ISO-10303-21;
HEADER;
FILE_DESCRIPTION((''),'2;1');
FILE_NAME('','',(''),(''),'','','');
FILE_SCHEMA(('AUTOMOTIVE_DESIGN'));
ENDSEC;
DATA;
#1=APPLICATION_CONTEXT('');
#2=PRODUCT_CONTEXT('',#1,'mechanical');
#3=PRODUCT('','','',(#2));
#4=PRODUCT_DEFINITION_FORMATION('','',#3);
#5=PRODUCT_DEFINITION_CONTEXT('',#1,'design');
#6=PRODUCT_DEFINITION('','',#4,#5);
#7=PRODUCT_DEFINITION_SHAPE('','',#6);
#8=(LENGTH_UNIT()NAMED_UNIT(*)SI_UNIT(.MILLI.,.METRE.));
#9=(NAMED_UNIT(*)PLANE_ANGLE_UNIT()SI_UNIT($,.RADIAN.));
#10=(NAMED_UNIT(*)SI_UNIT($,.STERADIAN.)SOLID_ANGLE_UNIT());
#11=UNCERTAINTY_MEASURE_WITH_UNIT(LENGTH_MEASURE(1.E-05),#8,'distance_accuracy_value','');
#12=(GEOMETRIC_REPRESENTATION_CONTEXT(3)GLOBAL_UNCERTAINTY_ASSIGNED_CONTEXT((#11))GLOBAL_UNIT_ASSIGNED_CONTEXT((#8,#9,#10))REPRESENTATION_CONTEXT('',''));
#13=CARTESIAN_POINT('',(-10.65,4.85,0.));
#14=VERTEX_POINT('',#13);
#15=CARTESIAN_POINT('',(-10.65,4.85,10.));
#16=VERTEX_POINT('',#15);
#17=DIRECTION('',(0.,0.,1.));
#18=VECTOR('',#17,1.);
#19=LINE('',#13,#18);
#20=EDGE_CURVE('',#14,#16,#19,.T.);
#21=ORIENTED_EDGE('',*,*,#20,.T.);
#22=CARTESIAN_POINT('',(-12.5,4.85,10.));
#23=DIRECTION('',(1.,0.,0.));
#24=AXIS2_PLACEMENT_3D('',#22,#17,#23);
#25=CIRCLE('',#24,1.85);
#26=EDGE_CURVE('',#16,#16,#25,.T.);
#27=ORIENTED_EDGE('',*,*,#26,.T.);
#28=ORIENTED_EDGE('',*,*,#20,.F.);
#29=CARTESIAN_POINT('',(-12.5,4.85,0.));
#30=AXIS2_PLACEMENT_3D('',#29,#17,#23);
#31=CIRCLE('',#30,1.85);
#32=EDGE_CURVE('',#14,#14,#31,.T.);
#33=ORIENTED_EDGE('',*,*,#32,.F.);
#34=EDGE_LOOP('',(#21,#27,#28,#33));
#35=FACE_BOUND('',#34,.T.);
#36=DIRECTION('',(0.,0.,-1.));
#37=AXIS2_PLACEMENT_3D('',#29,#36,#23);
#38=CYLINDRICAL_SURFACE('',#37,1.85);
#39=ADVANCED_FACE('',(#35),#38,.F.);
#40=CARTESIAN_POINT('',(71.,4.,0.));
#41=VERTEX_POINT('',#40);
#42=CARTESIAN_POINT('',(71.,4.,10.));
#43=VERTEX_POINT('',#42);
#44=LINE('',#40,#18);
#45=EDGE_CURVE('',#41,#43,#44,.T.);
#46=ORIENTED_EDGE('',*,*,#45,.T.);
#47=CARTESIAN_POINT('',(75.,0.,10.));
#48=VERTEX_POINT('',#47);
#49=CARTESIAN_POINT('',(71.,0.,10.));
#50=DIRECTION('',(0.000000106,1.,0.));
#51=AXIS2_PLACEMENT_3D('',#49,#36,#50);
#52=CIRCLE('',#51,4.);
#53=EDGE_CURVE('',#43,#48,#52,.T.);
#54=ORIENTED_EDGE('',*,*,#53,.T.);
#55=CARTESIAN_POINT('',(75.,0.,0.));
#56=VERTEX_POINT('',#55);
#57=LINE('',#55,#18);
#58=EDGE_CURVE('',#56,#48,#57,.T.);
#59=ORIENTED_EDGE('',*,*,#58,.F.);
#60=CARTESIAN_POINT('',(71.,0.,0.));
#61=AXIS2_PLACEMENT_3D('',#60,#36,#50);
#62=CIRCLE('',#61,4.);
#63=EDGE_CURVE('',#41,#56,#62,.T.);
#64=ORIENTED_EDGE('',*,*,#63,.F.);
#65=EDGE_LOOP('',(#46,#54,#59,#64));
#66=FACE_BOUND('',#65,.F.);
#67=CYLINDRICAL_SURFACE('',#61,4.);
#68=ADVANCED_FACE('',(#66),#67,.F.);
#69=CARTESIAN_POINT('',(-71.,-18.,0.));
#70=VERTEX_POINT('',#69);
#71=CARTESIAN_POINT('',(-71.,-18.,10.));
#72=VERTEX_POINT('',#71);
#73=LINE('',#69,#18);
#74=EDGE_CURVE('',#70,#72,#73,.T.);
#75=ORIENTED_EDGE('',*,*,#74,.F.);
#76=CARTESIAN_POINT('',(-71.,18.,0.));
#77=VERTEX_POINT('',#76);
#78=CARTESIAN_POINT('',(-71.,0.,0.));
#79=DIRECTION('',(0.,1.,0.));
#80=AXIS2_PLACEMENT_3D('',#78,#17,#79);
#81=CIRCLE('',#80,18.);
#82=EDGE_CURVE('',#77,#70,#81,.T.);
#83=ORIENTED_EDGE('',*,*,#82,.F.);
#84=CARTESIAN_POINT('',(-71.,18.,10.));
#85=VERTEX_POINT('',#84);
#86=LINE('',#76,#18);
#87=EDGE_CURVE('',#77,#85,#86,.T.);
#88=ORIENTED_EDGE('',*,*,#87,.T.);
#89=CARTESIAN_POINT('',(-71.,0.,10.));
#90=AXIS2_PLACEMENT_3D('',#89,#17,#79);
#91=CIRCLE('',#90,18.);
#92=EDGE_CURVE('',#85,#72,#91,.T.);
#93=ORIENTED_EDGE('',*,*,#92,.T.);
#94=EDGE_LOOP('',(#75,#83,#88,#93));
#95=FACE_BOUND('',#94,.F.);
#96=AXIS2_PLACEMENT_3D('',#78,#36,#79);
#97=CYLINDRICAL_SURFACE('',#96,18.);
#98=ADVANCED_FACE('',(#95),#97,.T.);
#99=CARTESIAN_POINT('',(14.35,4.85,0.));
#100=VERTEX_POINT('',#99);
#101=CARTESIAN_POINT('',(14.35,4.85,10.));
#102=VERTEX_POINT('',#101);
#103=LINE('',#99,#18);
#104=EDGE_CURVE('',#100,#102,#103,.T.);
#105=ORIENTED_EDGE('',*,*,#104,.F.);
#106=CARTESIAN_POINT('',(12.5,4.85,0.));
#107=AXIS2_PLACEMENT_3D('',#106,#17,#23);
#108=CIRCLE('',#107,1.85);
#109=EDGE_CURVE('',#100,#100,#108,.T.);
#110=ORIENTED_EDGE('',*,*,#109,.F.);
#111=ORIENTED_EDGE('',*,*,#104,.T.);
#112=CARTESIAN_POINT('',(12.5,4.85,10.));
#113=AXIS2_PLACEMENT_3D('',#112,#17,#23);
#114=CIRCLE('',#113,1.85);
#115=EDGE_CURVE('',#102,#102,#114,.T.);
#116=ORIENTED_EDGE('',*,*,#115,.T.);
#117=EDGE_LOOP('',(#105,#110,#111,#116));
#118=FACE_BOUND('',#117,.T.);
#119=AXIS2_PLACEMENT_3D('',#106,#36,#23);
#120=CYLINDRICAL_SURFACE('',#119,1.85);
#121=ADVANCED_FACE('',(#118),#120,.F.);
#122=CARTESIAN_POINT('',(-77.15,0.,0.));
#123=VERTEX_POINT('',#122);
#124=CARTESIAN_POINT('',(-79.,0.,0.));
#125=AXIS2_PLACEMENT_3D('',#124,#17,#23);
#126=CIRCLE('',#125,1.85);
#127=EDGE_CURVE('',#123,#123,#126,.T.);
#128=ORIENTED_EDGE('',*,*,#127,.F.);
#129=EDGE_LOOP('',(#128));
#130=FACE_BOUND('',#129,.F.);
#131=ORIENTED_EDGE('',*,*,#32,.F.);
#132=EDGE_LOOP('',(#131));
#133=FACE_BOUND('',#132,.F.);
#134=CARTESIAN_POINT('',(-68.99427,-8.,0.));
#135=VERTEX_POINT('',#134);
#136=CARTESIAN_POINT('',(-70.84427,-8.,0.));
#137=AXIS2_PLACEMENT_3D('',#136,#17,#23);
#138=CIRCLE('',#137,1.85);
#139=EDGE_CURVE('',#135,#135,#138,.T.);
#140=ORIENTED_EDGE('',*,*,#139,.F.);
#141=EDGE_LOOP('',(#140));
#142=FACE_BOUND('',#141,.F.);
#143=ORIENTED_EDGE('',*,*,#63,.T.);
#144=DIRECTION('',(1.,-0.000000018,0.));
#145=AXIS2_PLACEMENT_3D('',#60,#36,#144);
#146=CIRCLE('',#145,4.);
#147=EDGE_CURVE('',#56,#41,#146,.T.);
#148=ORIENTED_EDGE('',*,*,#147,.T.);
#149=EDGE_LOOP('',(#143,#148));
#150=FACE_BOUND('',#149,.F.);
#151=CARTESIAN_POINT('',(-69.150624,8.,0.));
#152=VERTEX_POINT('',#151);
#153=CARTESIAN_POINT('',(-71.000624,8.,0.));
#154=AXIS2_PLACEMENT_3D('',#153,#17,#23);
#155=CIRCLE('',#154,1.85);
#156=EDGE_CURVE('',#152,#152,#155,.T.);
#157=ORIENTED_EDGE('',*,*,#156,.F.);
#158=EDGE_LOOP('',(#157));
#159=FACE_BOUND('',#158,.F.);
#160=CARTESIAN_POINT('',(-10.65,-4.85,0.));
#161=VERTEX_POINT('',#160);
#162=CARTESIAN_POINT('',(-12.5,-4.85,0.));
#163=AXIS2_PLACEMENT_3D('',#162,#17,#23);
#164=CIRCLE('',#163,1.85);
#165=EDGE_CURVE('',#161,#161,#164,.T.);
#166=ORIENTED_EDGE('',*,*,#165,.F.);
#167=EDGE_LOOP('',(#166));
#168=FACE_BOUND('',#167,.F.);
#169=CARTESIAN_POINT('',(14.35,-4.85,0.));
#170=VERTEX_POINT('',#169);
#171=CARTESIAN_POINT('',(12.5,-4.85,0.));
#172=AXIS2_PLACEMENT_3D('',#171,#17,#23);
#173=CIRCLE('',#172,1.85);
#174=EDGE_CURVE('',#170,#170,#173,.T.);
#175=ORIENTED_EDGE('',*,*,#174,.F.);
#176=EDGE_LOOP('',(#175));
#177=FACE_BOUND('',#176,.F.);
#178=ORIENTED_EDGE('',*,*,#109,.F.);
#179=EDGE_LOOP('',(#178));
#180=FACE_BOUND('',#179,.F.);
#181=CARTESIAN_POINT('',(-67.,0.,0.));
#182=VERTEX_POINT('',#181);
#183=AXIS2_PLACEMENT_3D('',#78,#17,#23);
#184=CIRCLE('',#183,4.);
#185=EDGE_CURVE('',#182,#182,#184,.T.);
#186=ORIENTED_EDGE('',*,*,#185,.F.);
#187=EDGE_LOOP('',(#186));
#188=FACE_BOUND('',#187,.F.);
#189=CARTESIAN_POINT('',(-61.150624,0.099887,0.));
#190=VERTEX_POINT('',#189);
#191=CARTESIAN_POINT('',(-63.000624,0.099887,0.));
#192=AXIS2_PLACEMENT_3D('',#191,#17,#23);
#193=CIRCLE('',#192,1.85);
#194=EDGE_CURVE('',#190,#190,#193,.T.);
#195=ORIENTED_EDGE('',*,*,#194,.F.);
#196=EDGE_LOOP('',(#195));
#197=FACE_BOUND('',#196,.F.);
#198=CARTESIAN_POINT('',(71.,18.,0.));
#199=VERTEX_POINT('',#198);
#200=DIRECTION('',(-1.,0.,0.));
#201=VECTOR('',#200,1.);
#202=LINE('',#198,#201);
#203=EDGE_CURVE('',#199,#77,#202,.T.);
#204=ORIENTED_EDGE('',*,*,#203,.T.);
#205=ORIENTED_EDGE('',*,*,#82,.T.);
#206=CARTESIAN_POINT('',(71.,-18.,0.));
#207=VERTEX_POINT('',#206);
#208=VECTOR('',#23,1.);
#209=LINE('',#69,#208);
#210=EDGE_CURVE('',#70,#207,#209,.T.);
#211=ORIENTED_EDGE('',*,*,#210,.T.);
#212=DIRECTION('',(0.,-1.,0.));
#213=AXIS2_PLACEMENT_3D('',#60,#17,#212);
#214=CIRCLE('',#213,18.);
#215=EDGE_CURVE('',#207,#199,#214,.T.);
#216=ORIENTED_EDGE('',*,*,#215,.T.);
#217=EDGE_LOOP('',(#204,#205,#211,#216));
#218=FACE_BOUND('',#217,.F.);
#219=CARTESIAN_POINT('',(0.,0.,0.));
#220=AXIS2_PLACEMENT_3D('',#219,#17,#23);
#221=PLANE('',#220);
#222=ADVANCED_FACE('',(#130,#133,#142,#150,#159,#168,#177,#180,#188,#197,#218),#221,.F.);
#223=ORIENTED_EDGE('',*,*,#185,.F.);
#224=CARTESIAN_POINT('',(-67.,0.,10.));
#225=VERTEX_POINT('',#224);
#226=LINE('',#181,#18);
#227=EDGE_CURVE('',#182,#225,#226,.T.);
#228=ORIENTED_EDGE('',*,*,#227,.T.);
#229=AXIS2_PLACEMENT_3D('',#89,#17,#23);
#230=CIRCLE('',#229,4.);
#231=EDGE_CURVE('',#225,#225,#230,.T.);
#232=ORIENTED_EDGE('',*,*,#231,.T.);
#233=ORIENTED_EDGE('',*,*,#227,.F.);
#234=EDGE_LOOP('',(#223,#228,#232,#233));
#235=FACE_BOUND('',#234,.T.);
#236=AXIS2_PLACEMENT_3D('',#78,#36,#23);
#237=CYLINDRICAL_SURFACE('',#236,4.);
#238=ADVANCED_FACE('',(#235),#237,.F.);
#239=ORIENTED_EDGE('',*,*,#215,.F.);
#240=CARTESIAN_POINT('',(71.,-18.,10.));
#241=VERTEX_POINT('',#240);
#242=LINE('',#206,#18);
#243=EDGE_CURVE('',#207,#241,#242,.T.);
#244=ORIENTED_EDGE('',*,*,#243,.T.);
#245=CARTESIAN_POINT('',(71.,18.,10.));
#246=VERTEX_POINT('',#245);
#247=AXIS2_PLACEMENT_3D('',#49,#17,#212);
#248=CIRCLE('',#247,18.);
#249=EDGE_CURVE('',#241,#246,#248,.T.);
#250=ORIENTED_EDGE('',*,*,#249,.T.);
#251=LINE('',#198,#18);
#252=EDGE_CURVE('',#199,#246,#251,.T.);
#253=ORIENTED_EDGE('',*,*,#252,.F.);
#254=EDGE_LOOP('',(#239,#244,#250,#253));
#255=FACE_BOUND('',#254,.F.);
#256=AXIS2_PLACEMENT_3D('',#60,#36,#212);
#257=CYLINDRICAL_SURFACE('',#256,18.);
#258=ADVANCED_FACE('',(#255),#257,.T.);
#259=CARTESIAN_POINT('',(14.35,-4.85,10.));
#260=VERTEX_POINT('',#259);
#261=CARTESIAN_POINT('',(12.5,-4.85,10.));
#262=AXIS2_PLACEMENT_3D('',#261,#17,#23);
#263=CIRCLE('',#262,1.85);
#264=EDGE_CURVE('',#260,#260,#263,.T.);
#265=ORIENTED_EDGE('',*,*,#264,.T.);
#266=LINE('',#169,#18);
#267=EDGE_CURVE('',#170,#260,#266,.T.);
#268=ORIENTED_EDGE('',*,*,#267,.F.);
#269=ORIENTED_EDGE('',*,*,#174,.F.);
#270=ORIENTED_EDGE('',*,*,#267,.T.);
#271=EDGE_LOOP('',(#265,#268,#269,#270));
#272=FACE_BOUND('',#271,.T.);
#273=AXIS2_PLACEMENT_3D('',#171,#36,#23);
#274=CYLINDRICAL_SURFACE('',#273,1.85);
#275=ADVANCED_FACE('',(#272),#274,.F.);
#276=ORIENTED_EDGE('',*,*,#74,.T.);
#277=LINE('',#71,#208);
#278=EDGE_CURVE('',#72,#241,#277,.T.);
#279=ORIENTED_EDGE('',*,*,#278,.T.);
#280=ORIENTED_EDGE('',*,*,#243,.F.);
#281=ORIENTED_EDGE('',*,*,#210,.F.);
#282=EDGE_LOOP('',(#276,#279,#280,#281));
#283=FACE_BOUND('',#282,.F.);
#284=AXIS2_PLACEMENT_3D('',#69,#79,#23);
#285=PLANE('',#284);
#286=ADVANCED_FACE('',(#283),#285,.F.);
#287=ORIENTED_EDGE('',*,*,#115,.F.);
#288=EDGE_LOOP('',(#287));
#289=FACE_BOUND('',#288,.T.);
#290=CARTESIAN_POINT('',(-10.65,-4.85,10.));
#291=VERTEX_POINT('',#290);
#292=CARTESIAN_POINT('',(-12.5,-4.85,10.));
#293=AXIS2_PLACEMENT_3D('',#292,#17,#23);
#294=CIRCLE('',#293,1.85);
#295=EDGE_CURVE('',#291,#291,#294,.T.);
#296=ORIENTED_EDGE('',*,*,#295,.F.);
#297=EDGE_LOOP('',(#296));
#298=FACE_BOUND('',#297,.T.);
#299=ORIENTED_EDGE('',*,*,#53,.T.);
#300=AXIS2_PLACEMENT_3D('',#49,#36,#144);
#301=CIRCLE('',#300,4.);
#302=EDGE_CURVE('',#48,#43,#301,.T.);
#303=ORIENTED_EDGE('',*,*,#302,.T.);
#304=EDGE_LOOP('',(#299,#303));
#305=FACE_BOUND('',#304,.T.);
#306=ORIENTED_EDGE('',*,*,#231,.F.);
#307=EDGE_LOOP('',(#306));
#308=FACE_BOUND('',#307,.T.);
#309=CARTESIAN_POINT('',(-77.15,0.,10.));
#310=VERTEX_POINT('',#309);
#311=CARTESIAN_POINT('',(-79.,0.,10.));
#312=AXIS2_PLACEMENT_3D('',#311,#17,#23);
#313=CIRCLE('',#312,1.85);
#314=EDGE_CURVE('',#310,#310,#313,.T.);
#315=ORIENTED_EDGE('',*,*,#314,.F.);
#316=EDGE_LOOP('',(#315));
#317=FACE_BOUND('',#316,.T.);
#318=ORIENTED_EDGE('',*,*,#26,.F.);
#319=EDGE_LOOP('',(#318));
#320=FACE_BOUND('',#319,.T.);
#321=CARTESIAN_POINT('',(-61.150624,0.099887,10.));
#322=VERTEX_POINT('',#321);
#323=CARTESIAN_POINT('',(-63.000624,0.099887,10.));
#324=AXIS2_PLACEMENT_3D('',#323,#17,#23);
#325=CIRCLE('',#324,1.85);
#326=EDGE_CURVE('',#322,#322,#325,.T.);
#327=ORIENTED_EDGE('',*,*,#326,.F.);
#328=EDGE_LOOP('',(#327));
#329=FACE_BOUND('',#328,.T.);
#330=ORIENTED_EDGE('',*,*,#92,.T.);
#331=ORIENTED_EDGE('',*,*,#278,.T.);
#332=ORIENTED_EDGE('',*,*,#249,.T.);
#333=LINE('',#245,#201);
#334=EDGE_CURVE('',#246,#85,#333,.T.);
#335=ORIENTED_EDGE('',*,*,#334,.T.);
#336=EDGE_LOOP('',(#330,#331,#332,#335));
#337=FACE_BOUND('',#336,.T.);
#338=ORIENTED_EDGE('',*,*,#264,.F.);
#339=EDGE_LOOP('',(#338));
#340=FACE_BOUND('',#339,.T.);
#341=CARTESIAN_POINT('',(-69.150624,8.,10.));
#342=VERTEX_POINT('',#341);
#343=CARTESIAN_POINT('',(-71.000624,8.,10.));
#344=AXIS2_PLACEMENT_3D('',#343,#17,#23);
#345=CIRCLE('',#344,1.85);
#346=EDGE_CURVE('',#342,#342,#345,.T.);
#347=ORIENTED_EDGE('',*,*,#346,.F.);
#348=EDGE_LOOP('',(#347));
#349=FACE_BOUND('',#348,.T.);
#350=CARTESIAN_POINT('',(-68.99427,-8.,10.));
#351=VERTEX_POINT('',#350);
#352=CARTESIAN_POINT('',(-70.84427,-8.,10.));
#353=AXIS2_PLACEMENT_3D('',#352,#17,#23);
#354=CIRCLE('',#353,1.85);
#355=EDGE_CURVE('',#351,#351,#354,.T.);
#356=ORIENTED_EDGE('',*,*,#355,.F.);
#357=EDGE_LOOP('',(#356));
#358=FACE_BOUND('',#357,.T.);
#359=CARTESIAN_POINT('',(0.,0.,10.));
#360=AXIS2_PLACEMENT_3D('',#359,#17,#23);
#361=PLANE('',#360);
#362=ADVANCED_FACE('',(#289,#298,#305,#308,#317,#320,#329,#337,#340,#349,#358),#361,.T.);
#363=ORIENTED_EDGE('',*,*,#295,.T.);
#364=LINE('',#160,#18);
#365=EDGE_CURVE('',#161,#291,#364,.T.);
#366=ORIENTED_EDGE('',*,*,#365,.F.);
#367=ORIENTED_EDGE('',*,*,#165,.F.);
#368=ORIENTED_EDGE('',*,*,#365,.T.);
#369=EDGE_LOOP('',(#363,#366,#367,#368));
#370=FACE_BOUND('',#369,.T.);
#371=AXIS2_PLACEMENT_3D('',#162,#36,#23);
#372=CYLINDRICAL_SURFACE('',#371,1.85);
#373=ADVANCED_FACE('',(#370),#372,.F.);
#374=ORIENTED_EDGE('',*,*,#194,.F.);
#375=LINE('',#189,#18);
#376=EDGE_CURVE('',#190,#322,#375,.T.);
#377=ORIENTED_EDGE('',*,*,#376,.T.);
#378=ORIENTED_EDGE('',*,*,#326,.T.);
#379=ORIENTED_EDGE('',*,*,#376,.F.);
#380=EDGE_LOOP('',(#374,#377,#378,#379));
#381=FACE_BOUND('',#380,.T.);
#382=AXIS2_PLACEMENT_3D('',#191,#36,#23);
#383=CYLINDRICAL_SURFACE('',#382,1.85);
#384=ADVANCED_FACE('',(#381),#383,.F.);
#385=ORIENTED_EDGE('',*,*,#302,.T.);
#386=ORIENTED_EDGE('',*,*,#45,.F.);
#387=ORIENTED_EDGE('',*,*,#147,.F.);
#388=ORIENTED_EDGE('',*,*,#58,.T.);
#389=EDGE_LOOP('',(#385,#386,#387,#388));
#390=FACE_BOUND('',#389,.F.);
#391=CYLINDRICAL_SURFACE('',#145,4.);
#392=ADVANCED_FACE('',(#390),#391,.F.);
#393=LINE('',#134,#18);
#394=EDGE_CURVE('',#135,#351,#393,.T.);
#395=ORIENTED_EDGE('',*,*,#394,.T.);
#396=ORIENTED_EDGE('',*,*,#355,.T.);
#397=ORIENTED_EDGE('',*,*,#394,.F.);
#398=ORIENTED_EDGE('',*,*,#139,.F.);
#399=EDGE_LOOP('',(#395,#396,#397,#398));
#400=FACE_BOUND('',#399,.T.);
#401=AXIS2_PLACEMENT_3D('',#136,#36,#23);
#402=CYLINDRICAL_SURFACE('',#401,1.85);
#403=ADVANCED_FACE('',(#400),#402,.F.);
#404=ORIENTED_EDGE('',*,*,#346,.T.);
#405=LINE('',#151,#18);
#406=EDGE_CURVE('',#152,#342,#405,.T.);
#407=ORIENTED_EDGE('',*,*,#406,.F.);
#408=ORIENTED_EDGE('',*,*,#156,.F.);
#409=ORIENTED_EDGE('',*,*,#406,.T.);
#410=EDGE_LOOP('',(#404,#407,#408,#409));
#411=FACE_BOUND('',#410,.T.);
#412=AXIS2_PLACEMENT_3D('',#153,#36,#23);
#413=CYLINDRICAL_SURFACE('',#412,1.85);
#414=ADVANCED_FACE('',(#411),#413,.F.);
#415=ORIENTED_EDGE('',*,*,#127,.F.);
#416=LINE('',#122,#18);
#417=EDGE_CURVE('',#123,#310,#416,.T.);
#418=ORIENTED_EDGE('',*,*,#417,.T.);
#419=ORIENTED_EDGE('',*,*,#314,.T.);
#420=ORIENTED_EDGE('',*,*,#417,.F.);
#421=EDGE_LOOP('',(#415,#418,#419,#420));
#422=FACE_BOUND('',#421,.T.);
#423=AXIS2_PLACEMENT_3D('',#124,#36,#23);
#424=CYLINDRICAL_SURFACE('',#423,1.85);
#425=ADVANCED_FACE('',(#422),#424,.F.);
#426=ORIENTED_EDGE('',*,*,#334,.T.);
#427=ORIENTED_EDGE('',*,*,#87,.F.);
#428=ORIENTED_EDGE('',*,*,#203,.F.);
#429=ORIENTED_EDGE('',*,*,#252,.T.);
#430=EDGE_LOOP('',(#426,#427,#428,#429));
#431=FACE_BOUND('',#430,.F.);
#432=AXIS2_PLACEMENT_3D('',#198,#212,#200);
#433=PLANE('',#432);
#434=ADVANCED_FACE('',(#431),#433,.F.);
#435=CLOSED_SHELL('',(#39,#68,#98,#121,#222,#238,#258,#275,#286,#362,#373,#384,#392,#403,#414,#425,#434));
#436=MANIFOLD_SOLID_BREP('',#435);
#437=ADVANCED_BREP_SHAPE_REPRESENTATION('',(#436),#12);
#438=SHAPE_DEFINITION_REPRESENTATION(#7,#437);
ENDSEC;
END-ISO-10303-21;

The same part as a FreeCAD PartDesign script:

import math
import FreeCAD as App
import Part
import Sketcher
Q = App.Units.Quantity

doc = App.newDocument("Part")
body = doc.addObject("PartDesign::Body", "Body")

# Sketch on XY plane
sketch1 = body.newObject("Sketcher::SketchObject", "Sketch")
sketch1.AttachmentSupport = (doc.getObject("XY_Plane"), [""])
sketch1.MapMode = "FlatFace"
sketch1.addGeometry([
    Part.LineSegment(App.Vector(-71, -18, 0), App.Vector(71, -18, 0)),  # 0
    Part.ArcOfCircle(Part.Circle(App.Vector(71, 0, 0), App.Vector(0, 0, 1), 18), math.radians(-90), math.radians(90)),  # 1
    Part.LineSegment(App.Vector(71, 18, 0), App.Vector(-71, 18, 0)),  # 2
    Part.ArcOfCircle(Part.Circle(App.Vector(-71, 0, 0), App.Vector(0, 0, 1), 18), math.radians(90), math.radians(270)),  # 3
    Part.Circle(App.Vector(-70.8, -8, 0), App.Vector(0, 0, 1), 1.9),  # 4
    Part.Circle(App.Vector(-12.5, -4.8, 0), App.Vector(0, 0, 1), 1.9),  # 5
    Part.Circle(App.Vector(12.5, -4.8, 0), App.Vector(0, 0, 1), 1.9),  # 6
    Part.Circle(App.Vector(-79, 0, 0), App.Vector(0, 0, 1), 1.9),  # 7
    Part.Circle(App.Vector(-71, 0, 0), App.Vector(0, 0, 1), 4),  # 8
    Part.Circle(App.Vector(-63, 0.1, 0), App.Vector(0, 0, 1), 1.9),  # 9
    Part.Circle(App.Vector(-12.5, 4.8, 0), App.Vector(0, 0, 1), 1.9),  # 10
    Part.Circle(App.Vector(-71, 8, 0), App.Vector(0, 0, 1), 1.9),  # 11
    Part.Circle(App.Vector(12.5, 4.8, 0), App.Vector(0, 0, 1), 1.9),  # 12
    Part.ArcOfCircle(Part.Circle(App.Vector(71, 0, 0), App.Vector(0, 0, 1), 4), math.radians(90), math.radians(360)),  # 13
    Part.ArcOfCircle(Part.Circle(App.Vector(71, 0, 0), App.Vector(0, 0, 1), 4), math.radians(0), math.radians(90)),  # 14
], False)
sketch1.addConstraint([
    Sketcher.Constraint("Tangent", 0, 2, 1, 1),
    Sketcher.Constraint("Tangent", 1, 2, 2, 1),
    Sketcher.Constraint("Tangent", 2, 2, 3, 1),
    Sketcher.Constraint("Tangent", 3, 2, 0, 1),
    Sketcher.Constraint("Tangent", 13, 1, 14, 2),
    Sketcher.Constraint("Coincident", 14, 1, 13, 2),
    Sketcher.Constraint("Horizontal", 0),
    Sketcher.Constraint("Horizontal", 2),
    Sketcher.Constraint("Coincident", 8, 3, 3, 3),
    Sketcher.Constraint("Coincident", 13, 3, 1, 3),
    Sketcher.Constraint("Equal", 4, 5),
    Sketcher.Constraint("Equal", 5, 6),
    Sketcher.Constraint("Equal", 6, 7),
    Sketcher.Constraint("Equal", 7, 9),
    Sketcher.Constraint("Equal", 9, 10),
    Sketcher.Constraint("Equal", 10, 11),
    Sketcher.Constraint("Equal", 11, 12),
    Sketcher.Constraint("Equal", 8, 13),
    Sketcher.Constraint("Symmetric", 1, 3, 3, 3, -1, 1),
    Sketcher.Constraint("Symmetric", 6, 3, 10, 3, -1, 1),
    Sketcher.Constraint("Symmetric", 5, 3, 12, 3, -1, 1),
    Sketcher.Constraint("Symmetric", 5, 3, 6, 3, -2),
    Sketcher.Constraint("PointOnObject", 7, 3, -1),
    Sketcher.Constraint("PointOnObject", 14, 1, -1),
    Sketcher.Constraint("Vertical", 1, 2, 13, 1),
    Sketcher.Constraint("Diameter", 8, Q("8 mm")),
    Sketcher.Constraint("Radius", 1, Q("18 mm")),
    Sketcher.Constraint("Diameter", 4, Q("3.7 mm")),
    Sketcher.Constraint("DistanceX", 0, 1, 0, 2, Q("142 mm")),
    Sketcher.Constraint("DistanceY", 4, 3, -1, 1, Q("8 mm")),
    Sketcher.Constraint("DistanceX", 7, 3, -1, 1, Q("79 mm")),
    Sketcher.Constraint("DistanceY", -1, 1, 11, 3, Q("8 mm")),
    Sketcher.Constraint("DistanceX", 5, 3, 6, 3, Q("25 mm")),
    Sketcher.Constraint("DistanceX", 11, 3, 9, 3, Q("8 mm")),
    Sketcher.Constraint("DistanceY", 5, 3, 10, 3, Q("9.7 mm")),
    Sketcher.Constraint("DistanceX", 4, 3, -1, 1, Q("70.84427 mm")),
    Sketcher.Constraint("DistanceX", 9, 3, -1, 1, Q("63.000624 mm")),
    Sketcher.Constraint("DistanceY", -1, 1, 9, 3, Q("0.099887 mm")),
])
pad1 = body.newObject("PartDesign::Pad", "Pad")
pad1.Profile = sketch1
pad1.Length = 10

doc.recompute()
